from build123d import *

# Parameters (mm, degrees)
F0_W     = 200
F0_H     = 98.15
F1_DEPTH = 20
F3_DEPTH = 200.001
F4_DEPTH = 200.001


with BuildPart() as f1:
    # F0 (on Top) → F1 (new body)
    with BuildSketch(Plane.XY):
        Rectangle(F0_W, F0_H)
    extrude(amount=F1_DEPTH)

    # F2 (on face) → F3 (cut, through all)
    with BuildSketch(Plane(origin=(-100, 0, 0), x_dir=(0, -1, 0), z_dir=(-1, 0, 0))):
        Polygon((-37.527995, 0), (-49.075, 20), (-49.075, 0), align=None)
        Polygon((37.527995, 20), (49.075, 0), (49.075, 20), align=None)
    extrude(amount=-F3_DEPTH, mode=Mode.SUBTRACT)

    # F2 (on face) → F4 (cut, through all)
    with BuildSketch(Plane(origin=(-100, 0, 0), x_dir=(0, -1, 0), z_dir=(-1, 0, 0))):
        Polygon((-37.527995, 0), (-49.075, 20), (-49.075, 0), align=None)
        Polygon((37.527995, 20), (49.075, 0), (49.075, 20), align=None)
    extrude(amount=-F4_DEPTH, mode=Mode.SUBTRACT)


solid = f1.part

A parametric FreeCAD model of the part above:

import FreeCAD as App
import Part
import Sketcher
from FreeCAD import Vector
Q = App.Units.Quantity


def add_polygon(sketch, points):
    """Adds a closed chain of lines whose ends are joined by coincident constraints."""
    first, n = sketch.GeometryCount, len(points)
    for a, b in zip(points, points[1:] + points[:1]):
        sketch.addGeometry(Part.LineSegment(App.Vector(*a, 0), App.Vector(*b, 0)), False)
    for i in range(n):
        sketch.addConstraint(Sketcher.Constraint("Coincident", first + i, 2, first + (i + 1) % n, 1))

doc = App.newDocument("Part")
params = doc.addObject("Spreadsheet::Sheet", "Params")
for row, (alias, value) in enumerate([
    ("sketch1_width", "200 mm"),
    ("sketch1_height", "98.15 mm"),
    ("pad1_length", "20 mm"),
    ("sketch2_height", "20 mm"),
    ("sketch3_height", "20 mm"),
], start=1):
    params.set(f"A{row}", alias)
    params.set(f"B{row}", "=" + value)
    params.setAlias(f"B{row}", alias)

body = doc.addObject("PartDesign::Body", "Body")

sketch1 = body.newObject("Sketcher::SketchObject", "Sketch")
sketch1.AttachmentSupport = (doc.getObject("XY_Plane"), [""])
sketch1.MapMode = "FlatFace"
add_polygon(sketch1, [(-100, 49.075), (-100, -49.075), (100, -49.075), (100, 49.075)])
sketch1.addConstraint([
    Sketcher.Constraint("Vertical", 0),
    Sketcher.Constraint("Horizontal", 1),
    Sketcher.Constraint("Vertical", 2),
    Sketcher.Constraint("Horizontal", 3),
    Sketcher.Constraint("Symmetric", 0, 2, 2, 2, -1, 1),
    Sketcher.Constraint("DistanceX", 1, 1, 1, 2, 200.0),
    Sketcher.Constraint("DistanceY", 0, 2, 0, 1, 98.15),
])
sketch1.setExpression("Constraints[9]", "Params.sketch1_width")
sketch1.setExpression("Constraints[10]", "Params.sketch1_height")
pad1 = body.newObject("PartDesign::Pad", "Pad")
pad1.Profile = sketch1
pad1.setExpression("Length", "Params.pad1_length")

sketch2 = body.newObject("Sketcher::SketchObject", "Sketch001")
sketch2.AttachmentSupport = (doc.getObject("YZ_Plane"), [""])
sketch2.MapMode = "FlatFace"
sketch2.AttachmentOffset = App.Placement(Vector(0, 0, -100), App.Rotation())
add_polygon(sketch2, [(37.527995, 0), (49.075, 20), (49.075, 0)])
add_polygon(sketch2, [(-37.527995, 20), (-49.075, 0), (-49.075, 20)])
sketch2.addConstraint([
    Sketcher.Constraint("Vertical", 1),
    Sketcher.Constraint("Horizontal", 2),
    Sketcher.Constraint("Vertical", 4),
    Sketcher.Constraint("Horizontal", 5),
    Sketcher.Constraint("Symmetric", 1, 2, 3, 2, -1, 1),
    Sketcher.Constraint("PointOnObject", 1, 2, -1),
    Sketcher.Constraint("Parallel", 0, 3),
    Sketcher.Constraint("Horizontal", 0, 2, 4, 2),
    Sketcher.Constraint("DistanceY", 1, 2, 1, 1, 20.0),
    Sketcher.Constraint("Angle", 0, Q("60.000001 deg")),
    Sketcher.Constraint("DistanceX", 3, 2, 1, 2, 98.15),
])
sketch2.setExpression("Constraints[14]", "Params.sketch2_height")
pocket1 = body.newObject("PartDesign::Pocket", "Pocket")
pocket1.Profile = sketch2
pocket1.Type = "ThroughAll"
pocket1.Reversed = True

sketch3 = body.newObject("Sketcher::SketchObject", "Sketch002")
sketch3.AttachmentSupport = (doc.getObject("YZ_Plane"), [""])
sketch3.MapMode = "FlatFace"
sketch3.AttachmentOffset = App.Placement(Vector(0, 0, -100), App.Rotation())
add_polygon(sketch3, [(37.527995, 0), (49.075, 20), (49.075, 0)])
add_polygon(sketch3, [(-37.527995, 20), (-49.075, 0), (-49.075, 20)])
sketch3.addConstraint([
    Sketcher.Constraint("Vertical", 1),
    Sketcher.Constraint("Horizontal", 2),
    Sketcher.Constraint("Vertical", 4),
    Sketcher.Constraint("Horizontal", 5),
    Sketcher.Constraint("Symmetric", 1, 2, 3, 2, -1, 1),
    Sketcher.Constraint("PointOnObject", 1, 2, -1),
    Sketcher.Constraint("Parallel", 0, 3),
    Sketcher.Constraint("Horizontal", 0, 2, 4, 2),
    Sketcher.Constraint("DistanceY", 1, 2, 1, 1, 20.0),
    Sketcher.Constraint("Angle", 0, Q("60.000001 deg")),
    Sketcher.Constraint("DistanceX", 3, 2, 1, 2, 98.15),
])
sketch3.setExpression("Constraints[14]", "Params.sketch3_height")
pocket2 = body.newObject("PartDesign::Pocket", "Pocket001")
pocket2.Profile = sketch3
pocket2.Type = "ThroughAll"
pocket2.Reversed = True

doc.recompute()
